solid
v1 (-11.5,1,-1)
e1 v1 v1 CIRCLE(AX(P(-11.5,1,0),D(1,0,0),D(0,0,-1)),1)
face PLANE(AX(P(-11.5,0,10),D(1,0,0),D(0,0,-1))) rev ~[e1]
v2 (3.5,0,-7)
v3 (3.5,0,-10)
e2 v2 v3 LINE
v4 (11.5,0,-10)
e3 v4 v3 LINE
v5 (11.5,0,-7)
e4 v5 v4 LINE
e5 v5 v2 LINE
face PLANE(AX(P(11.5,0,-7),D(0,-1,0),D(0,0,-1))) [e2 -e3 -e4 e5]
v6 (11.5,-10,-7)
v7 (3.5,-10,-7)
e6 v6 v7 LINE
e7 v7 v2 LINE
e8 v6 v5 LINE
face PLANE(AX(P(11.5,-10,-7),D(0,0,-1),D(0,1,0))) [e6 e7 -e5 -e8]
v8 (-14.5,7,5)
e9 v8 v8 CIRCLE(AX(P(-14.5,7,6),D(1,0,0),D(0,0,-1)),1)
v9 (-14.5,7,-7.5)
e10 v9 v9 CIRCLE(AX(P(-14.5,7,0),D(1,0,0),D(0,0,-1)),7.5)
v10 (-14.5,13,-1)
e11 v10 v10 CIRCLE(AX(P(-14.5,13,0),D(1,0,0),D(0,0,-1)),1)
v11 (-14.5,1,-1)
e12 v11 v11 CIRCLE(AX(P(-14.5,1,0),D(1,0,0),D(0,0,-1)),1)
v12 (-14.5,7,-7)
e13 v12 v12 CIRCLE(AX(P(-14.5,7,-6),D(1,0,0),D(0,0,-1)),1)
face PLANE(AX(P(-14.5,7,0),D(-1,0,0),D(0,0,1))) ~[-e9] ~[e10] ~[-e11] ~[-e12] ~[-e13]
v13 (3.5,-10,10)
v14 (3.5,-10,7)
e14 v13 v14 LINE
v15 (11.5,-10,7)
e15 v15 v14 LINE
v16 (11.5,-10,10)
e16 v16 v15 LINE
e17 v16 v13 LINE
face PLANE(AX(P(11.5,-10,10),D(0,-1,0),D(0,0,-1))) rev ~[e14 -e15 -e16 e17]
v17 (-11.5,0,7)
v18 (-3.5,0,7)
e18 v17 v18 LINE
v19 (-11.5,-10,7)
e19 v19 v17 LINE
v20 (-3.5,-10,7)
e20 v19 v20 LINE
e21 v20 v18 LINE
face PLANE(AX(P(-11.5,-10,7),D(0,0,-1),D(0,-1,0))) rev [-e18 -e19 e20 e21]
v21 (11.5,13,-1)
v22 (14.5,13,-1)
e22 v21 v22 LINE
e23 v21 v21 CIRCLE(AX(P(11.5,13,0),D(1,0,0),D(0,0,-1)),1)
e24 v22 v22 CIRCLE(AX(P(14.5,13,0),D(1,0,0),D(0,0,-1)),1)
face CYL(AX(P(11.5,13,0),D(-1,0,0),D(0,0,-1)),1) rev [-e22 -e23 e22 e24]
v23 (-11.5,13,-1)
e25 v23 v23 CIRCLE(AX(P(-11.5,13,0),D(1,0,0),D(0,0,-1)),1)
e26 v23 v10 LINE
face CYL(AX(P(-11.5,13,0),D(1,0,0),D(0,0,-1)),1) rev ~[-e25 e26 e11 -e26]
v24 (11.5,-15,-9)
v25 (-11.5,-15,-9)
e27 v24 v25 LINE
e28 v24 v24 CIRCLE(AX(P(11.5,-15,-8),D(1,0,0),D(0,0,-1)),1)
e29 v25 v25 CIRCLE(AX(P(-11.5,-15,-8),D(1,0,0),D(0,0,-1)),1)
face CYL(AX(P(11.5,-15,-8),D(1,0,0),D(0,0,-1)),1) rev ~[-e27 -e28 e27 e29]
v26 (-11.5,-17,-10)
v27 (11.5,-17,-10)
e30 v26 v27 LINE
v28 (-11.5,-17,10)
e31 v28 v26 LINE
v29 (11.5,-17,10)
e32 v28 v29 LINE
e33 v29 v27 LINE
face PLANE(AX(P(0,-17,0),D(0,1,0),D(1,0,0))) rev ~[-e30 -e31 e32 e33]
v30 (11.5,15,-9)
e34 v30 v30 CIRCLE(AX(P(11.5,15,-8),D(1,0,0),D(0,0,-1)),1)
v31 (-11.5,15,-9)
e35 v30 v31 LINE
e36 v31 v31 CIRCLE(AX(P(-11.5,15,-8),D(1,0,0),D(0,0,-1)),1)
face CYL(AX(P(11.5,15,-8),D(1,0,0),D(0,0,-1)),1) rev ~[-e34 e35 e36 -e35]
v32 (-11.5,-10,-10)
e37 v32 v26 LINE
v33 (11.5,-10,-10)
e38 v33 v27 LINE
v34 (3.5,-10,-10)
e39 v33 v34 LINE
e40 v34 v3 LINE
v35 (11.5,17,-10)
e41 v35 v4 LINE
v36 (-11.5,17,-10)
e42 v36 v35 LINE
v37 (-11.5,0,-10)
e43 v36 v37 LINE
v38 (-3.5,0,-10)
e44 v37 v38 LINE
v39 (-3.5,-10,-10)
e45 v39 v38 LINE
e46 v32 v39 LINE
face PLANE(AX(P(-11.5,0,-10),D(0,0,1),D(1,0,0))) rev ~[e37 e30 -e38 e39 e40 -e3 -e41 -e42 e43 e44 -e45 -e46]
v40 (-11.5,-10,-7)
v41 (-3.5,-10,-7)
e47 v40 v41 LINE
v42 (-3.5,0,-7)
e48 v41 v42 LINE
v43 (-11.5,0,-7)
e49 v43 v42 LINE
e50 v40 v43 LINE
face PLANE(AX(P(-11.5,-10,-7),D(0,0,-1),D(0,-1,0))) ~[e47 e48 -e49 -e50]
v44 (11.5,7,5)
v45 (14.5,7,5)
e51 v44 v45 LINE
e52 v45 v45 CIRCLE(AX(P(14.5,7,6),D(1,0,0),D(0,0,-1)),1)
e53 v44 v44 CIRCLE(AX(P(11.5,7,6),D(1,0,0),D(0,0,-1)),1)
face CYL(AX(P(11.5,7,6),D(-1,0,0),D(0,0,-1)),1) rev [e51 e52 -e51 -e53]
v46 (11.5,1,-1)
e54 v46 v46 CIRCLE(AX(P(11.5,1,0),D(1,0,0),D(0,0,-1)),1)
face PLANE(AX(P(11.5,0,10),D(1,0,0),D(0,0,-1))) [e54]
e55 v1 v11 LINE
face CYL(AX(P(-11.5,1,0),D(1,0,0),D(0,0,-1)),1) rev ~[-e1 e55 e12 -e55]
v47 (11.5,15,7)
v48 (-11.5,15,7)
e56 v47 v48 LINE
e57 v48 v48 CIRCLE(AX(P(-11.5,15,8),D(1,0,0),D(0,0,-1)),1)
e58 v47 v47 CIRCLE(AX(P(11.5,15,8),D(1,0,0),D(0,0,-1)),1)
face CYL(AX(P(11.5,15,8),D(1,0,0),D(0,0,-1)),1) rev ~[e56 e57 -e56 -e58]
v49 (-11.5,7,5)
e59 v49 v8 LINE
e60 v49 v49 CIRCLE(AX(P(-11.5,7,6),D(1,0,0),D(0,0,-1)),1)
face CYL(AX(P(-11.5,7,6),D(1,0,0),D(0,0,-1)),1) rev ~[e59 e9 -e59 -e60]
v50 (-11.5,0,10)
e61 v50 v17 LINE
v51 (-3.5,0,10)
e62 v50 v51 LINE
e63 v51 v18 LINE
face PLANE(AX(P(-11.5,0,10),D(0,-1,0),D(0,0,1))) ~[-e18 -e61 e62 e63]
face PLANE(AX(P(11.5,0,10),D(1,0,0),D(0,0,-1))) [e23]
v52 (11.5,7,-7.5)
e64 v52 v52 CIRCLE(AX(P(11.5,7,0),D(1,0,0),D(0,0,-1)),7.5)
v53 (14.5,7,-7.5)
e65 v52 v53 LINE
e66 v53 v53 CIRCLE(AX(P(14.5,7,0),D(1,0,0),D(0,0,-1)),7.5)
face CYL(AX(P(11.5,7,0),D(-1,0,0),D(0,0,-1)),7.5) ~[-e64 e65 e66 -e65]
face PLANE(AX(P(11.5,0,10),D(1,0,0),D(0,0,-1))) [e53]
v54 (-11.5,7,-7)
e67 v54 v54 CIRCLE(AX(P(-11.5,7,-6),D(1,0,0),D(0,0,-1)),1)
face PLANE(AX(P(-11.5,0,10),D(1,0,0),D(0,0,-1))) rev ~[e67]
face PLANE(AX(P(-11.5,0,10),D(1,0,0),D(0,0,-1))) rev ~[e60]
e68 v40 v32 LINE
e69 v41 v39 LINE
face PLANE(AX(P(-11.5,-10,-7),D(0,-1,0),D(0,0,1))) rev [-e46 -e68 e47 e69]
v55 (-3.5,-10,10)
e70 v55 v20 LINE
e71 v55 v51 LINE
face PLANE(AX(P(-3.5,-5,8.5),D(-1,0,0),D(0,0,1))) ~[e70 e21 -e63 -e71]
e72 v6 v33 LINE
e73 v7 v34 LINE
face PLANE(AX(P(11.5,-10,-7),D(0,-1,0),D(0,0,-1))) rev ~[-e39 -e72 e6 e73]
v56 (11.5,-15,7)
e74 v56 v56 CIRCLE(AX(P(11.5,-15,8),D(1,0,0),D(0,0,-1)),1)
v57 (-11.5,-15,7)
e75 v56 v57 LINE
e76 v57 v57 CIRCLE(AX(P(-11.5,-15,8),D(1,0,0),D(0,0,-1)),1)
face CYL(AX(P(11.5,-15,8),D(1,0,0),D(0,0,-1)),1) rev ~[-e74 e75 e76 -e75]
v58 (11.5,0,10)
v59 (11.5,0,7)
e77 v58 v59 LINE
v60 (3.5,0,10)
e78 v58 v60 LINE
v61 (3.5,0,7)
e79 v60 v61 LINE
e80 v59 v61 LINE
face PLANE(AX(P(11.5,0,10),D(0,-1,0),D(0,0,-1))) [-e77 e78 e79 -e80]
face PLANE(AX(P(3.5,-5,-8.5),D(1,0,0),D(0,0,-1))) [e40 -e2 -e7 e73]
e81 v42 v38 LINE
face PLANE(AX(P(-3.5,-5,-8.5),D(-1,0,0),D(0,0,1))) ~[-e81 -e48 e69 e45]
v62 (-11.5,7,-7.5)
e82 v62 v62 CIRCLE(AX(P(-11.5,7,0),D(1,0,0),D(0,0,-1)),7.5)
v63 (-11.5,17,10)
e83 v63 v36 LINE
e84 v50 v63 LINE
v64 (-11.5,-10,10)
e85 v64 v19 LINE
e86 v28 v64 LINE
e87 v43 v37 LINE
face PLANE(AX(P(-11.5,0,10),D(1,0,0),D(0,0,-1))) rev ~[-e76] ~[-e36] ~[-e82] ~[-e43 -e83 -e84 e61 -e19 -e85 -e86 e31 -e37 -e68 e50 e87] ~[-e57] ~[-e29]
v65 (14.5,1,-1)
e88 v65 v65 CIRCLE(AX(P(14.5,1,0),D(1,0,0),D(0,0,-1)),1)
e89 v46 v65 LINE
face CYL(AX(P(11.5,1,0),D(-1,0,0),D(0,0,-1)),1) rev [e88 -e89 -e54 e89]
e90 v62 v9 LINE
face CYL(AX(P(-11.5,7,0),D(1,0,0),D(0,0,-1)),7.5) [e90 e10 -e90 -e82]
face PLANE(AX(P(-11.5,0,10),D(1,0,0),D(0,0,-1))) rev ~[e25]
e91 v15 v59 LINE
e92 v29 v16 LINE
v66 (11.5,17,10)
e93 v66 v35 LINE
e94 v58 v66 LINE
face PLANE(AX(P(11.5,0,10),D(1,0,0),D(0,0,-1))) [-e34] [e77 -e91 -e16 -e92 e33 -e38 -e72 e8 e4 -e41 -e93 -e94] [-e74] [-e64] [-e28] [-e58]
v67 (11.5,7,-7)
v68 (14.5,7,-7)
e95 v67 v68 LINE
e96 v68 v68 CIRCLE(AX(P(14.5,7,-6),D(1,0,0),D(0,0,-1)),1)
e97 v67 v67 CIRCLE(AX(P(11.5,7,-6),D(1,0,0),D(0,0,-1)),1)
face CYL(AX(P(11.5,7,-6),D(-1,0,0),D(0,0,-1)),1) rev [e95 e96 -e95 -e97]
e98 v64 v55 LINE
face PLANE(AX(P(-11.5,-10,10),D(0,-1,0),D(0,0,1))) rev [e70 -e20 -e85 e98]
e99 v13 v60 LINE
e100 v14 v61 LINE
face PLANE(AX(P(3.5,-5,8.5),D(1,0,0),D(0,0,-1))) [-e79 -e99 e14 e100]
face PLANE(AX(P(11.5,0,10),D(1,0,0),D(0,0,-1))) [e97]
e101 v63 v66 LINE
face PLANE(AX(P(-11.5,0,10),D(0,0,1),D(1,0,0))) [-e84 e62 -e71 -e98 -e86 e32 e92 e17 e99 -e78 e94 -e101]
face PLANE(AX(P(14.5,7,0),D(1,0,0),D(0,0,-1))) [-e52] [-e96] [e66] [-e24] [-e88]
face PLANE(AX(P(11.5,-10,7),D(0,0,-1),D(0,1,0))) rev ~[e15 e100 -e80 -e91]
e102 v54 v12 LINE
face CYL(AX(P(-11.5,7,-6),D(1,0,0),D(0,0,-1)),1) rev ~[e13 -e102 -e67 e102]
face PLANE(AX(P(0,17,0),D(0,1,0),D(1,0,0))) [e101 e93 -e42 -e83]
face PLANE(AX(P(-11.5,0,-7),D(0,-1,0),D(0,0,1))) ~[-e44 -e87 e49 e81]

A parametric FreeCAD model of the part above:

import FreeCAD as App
import Part
import Sketcher

V = App.Vector
Q = App.Units.Quantity


def add_polygon(sketch, points):
    """Adds a closed chain of lines whose ends are joined by coincident constraints."""
    first, n = sketch.GeometryCount, len(points)
    for a, b in zip(points, points[1:] + points[:1]):
        sketch.addGeometry(Part.LineSegment(App.Vector(*a, 0), App.Vector(*b, 0)), False)
    for i in range(n):
        sketch.addConstraint(Sketcher.Constraint("Coincident", first + i, 2, first + (i + 1) % n, 1))

doc = App.newDocument("Part")
body = doc.addObject("PartDesign::Body", "Body")

# Sketch on XZ plane
sketch1 = body.newObject("Sketcher::SketchObject", "Sketch")
sketch1.AttachmentSupport = (doc.getObject("XZ_Plane"), [""])
sketch1.MapMode = "FlatFace"
add_polygon(sketch1, [(-12, -10), (-12, 10), (12, 10), (12, -10)])  # lines 0-3
sketch1.addConstraint([
    Sketcher.Constraint("Vertical", 0),
    Sketcher.Constraint("Horizontal", 1),
    Sketcher.Constraint("Vertical", 2),
    Sketcher.Constraint("Horizontal", 3),
    Sketcher.Constraint("Symmetric", 0, 2, 2, 2, -1, 1),
    Sketcher.Constraint("DistanceX", 1, 1, 1, 2, Q("23 mm")),
    Sketcher.Constraint("DistanceY", 0, 1, 0, 2, Q("20 mm")),
])
pad1 = body.newObject("PartDesign::Pad", "Pad")
pad1.Profile = sketch1
pad1.Length = 34
pad1.Midplane = True

# Sketch on YZ plane
sketch2 = body.newObject("Sketcher::SketchObject", "Sketch001")
sketch2.AttachmentSupport = (doc.getObject("YZ_Plane"), [""])
sketch2.MapMode = "FlatFace"
sketch2.AttachmentOffset = App.Placement(V(0, 0, 11.5), App.Rotation())
sketch2.addGeometry([
    Part.Circle(V(7, 0, 0), V(0, 0, 1), 7.5),  # 0
    Part.Circle(V(1, 0, 0), V(0, 0, 1), 1),  # 1
    Part.Circle(V(7, 6, 0), V(0, 0, 1), 1),  # 2
    Part.Circle(V(7, -6, 0), V(0, 0, 1), 1),  # 3
    Part.Circle(V(13, 0, 0), V(0, 0, 1), 1),  # 4
], False)
sketch2.addConstraint([
    Sketcher.Constraint("Equal", 1, 2),
    Sketcher.Constraint("Equal", 2, 3),
    Sketcher.Constraint("Equal", 3, 4),
    Sketcher.Constraint("Symmetric", 2, 3, 3, 3, -1),
    Sketcher.Constraint("PointOnObject", 0, 3, -1),
    Sketcher.Constraint("PointOnObject", 1, 3, -1),
    Sketcher.Constraint("PointOnObject", 4, 3, -1),
    Sketcher.Constraint("Vertical", 0, 3, 2, 3),
    Sketcher.Constraint("Diameter", 0, Q("15 mm")),
    Sketcher.Constraint("Diameter", 1, Q("2 mm")),
    Sketcher.Constraint("DistanceX", -1, 1, 0, 3, Q("7 mm")),
    Sketcher.Constraint("DistanceX", -1, 1, 1, 3, Q("1 mm")),
    Sketcher.Constraint("DistanceY", -1, 1, 2, 3, Q("6 mm")),
    Sketcher.Constraint("DistanceX", -1, 1, 4, 3, Q("13 mm")),
])
pad2 = body.newObject("PartDesign::Pad", "Pad001")
pad2.Profile = sketch2
pad2.Length = 3
doc.recompute()

mirrored = body.newObject("PartDesign::Mirrored", "Mirrored")
mirrored.Originals = [pad2]
mirrored.MirrorPlane = (doc.getObject("YZ_Plane"), [""])
body.Tip = mirrored

# Sketch on YZ plane
sketch3 = body.newObject("Sketcher::SketchObject", "Sketch002")
sketch3.AttachmentSupport = (doc.getObject("YZ_Plane"), [""])
sketch3.MapMode = "FlatFace"
sketch3.AttachmentOffset = App.Placement(V(0, 0, 11.5), App.Rotation())
add_polygon(sketch3, [(0, 10), (-10, 10), (-10, 7), (0, 7)])  # lines 0-3
add_polygon(sketch3, [(0, -7), (-10, -7), (-10, -10), (0, -10)])  # lines 4-7
sketch3.addConstraint([
    Sketcher.Constraint("Horizontal", 0),
    Sketcher.Constraint("Vertical", 1),
    Sketcher.Constraint("Horizontal", 2),
    Sketcher.Constraint("Vertical", 3),
    Sketcher.Constraint("Horizontal", 4),
    Sketcher.Constraint("Vertical", 5),
    Sketcher.Constraint("Horizontal", 6),
    Sketcher.Constraint("Vertical", 7),
    Sketcher.Constraint("Symmetric", 3, 2, 6, 2, -1, 1),
    Sketcher.Constraint("Symmetric", 1, 2, 4, 2, -1),
    Sketcher.Constraint("PointOnObject", 2, 2, -2),
    Sketcher.Constraint("DistanceX", 0, 2, 0, 1, Q("10 mm")),
    Sketcher.Constraint("DistanceY", 1, 2, 1, 1, Q("3 mm")),
    Sketcher.Constraint("DistanceY", -1, 1, 0, 2, Q("10 mm")),
])
pocket1 = body.newObject("PartDesign::Pocket", "Pocket")
pocket1.Profile = sketch3
pocket1.Length = 8
doc.recompute()

mirrored2 = body.newObject("PartDesign::Mirrored", "Mirrored001")
mirrored2.Originals = [pocket1]
mirrored2.MirrorPlane = (doc.getObject("YZ_Plane"), [""])
body.Tip = mirrored2

# Sketch on YZ plane
sketch4 = body.newObject("Sketcher::SketchObject", "Sketch003")
sketch4.AttachmentSupport = (doc.getObject("YZ_Plane"), [""])
sketch4.MapMode = "FlatFace"
sketch4.AttachmentOffset = App.Placement(V(0, 0, 11.5), App.Rotation())
sketch4.addGeometry([
    Part.Circle(V(15, 8, 0), V(0, 0, 1), 1),
    Part.Circle(V(15, -8, 0), V(0, 0, 1), 1),
    Part.Circle(V(-15, 8, 0), V(0, 0, 1), 1),
    Part.Circle(V(-15, -8, 0), V(0, 0, 1), 1),
], False)
sketch4.addConstraint([
    Sketcher.Constraint("Equal", 0, 1),
    Sketcher.Constraint("Equal", 1, 2),
    Sketcher.Constraint("Equal", 2, 3),
    Sketcher.Constraint("Symmetric", 1, 3, 2, 3, -1, 1),
    Sketcher.Constraint("Symmetric", 0, 3, 3, 3, -1, 1),
    Sketcher.Constraint("Symmetric", 0, 3, 2, 3, -2),
    Sketcher.Constraint("Diameter", 0, Q("2 mm")),
    Sketcher.Constraint("DistanceX", -1, 1, 0, 3, Q("15 mm")),
    Sketcher.Constraint("DistanceY", -1, 1, 0, 3, Q("8 mm")),
])
pocket2 = body.newObject("PartDesign::Pocket", "Pocket001")
pocket2.Profile = sketch4
pocket2.Type = "ThroughAll"

doc.recompute()
